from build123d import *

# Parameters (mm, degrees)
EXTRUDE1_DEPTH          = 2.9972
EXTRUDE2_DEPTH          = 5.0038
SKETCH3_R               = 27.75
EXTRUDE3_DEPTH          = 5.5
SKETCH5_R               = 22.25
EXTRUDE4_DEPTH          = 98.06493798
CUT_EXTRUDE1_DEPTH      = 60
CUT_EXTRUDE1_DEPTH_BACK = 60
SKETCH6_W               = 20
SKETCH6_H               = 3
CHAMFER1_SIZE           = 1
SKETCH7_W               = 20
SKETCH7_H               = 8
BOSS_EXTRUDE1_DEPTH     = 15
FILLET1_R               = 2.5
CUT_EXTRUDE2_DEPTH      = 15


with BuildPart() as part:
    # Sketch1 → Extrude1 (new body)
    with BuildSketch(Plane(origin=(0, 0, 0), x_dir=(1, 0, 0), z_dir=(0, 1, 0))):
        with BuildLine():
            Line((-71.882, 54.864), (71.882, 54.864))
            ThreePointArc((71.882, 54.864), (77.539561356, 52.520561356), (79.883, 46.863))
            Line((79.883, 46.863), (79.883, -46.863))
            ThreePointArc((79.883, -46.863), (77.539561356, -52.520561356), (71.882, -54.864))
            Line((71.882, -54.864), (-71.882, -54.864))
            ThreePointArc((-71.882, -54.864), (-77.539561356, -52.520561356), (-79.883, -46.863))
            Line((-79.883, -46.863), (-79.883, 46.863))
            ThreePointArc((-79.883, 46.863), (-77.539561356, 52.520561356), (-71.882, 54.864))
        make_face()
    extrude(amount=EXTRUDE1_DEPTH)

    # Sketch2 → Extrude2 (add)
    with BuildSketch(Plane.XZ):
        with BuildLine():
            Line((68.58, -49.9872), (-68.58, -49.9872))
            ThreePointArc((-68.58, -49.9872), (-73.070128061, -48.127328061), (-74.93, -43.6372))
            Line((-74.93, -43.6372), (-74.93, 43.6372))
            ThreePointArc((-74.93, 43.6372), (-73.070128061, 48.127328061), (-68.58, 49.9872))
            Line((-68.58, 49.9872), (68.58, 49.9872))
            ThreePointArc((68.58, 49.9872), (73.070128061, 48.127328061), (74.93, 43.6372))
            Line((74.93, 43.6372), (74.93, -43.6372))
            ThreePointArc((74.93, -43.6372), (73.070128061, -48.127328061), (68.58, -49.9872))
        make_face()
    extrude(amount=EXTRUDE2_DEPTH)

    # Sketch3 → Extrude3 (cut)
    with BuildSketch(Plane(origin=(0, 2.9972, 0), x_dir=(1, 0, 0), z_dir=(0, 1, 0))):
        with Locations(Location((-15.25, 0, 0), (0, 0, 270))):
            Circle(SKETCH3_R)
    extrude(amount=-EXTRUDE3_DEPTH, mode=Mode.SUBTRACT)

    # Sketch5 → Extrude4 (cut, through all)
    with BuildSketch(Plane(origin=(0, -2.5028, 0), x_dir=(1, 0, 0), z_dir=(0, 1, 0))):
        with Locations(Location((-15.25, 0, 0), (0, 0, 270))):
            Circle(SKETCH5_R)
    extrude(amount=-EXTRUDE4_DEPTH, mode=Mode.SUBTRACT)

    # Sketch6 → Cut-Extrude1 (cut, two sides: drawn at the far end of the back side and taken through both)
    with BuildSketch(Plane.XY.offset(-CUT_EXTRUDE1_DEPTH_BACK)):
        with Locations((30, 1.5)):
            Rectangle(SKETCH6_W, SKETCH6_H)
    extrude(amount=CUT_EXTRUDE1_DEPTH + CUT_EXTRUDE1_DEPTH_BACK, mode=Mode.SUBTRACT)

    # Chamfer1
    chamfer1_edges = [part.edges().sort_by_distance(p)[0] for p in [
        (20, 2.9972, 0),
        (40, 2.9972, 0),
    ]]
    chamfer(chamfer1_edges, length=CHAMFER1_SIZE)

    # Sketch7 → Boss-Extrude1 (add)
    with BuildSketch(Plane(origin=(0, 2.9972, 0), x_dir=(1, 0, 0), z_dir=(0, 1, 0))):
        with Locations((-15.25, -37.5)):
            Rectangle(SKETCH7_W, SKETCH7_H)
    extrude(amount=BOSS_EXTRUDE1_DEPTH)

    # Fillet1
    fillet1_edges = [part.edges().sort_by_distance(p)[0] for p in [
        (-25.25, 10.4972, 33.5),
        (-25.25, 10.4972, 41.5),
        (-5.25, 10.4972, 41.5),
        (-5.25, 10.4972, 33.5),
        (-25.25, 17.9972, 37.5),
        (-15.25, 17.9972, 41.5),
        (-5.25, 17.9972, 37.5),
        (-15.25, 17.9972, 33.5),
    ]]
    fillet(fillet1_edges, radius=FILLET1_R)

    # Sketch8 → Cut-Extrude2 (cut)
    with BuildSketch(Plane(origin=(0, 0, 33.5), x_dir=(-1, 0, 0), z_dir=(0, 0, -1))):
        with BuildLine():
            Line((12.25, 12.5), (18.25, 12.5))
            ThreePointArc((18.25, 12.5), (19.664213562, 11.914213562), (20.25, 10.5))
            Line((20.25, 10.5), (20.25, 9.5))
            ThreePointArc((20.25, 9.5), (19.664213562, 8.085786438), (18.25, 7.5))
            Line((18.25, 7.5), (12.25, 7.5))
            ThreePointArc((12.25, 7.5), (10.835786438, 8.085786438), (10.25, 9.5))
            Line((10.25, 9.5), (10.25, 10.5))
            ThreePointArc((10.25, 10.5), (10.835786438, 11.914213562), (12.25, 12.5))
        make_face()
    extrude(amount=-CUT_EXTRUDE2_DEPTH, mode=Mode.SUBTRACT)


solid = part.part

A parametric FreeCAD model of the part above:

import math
import FreeCAD as App
import Part
import Sketcher

V = App.Vector
Q = App.Units.Quantity


def edges_at(feature, points):
    """Names of the edges that pass closest to the given points."""
    edges = feature.Shape.Edges
    near = lambda p: min(range(len(edges)), key=lambda i: edges[i].distToShape(Part.Vertex(*p))[0])
    return sorted({f"Edge{near(p) + 1}" for p in points})


def add_polygon(sketch, points):
    """Adds a closed chain of lines whose ends are joined by coincident constraints."""
    first, n = sketch.GeometryCount, len(points)
    for a, b in zip(points, points[1:] + points[:1]):
        sketch.addGeometry(Part.LineSegment(App.Vector(*a, 0), App.Vector(*b, 0)), False)
    for i in range(n):
        sketch.addConstraint(Sketcher.Constraint("Coincident", first + i, 2, first + (i + 1) % n, 1))

doc = App.newDocument("Part")
body = doc.addObject("PartDesign::Body", "Body")

# Sketch on XZ plane
sketch1 = body.newObject("Sketcher::SketchObject", "Sketch")
sketch1.AttachmentSupport = (doc.getObject("XZ_Plane"), [""])
sketch1.MapMode = "FlatFace"
sketch1.addGeometry(Part.LineSegment(V(72, -55, 0), V(-72, -55, 0)), False)
sketch1.addGeometry(Part.ArcOfCircle(Part.Circle(V(-72, -47, 0), V(0, 0, 1), 8), math.radians(-180), math.radians(-90)), False)
sketch1.addGeometry(Part.LineSegment(V(-80, -47, 0), V(-80, 47, 0)), False)
sketch1.addGeometry(Part.ArcOfCircle(Part.Circle(V(-72, 47, 0), V(0, 0, 1), 8), math.radians(90), math.radians(180)), False)
sketch1.addGeometry(Part.LineSegment(V(-72, 55, 0), V(72, 55, 0)), False)
sketch1.addGeometry(Part.ArcOfCircle(Part.Circle(V(72, 47, 0), V(0, 0, 1), 8), math.radians(0), math.radians(90)), False)
sketch1.addGeometry(Part.LineSegment(V(80, 47, 0), V(80, -47, 0)), False)
sketch1.addGeometry(Part.ArcOfCircle(Part.Circle(V(72, -47, 0), V(0, 0, 1), 8), math.radians(-90), math.radians(0)), False)
sketch1.addConstraint(Sketcher.Constraint("Tangent", 0, 2, 1, 2))
sketch1.addConstraint(Sketcher.Constraint("Tangent", 1, 1, 2, 1))
sketch1.addConstraint(Sketcher.Constraint("Tangent", 2, 2, 3, 2))
sketch1.addConstraint(Sketcher.Constraint("Tangent", 3, 1, 4, 1))
sketch1.addConstraint(Sketcher.Constraint("Tangent", 4, 2, 5, 2))
sketch1.addConstraint(Sketcher.Constraint("Tangent", 5, 1, 6, 1))
sketch1.addConstraint(Sketcher.Constraint("Tangent", 6, 2, 7, 2))
sketch1.addConstraint(Sketcher.Constraint("Tangent", 7, 1, 0, 1))
sketch1.addConstraint(Sketcher.Constraint("Horizontal", 0))
sketch1.addConstraint(Sketcher.Constraint("Vertical", 2))
sketch1.addConstraint(Sketcher.Constraint("Horizontal", 4))
sketch1.addConstraint(Sketcher.Constraint("Vertical", 6))
sketch1.addConstraint(Sketcher.Constraint("Equal", 1, 3))
sketch1.addConstraint(Sketcher.Constraint("Equal", 3, 5))
sketch1.addConstraint(Sketcher.Constraint("Equal", 5, 7))
sketch1.addConstraint(Sketcher.Constraint("Symmetric", 1, 3, 5, 3, -1, 1))
sketch1.addConstraint(Sketcher.Constraint("Radius", 1, Q("8.001 mm")))
sketch1.addConstraint(Sketcher.Constraint("DistanceX", 0, 2, 0, 1, Q("143.764 mm")))
sketch1.addConstraint(Sketcher.Constraint("DistanceY", 2, 1, 2, 2, Q("93.726 mm")))
pad1 = body.newObject("PartDesign::Pad", "Pad")
pad1.Profile = sketch1
pad1.Length = 2.9972
pad1.Reversed = True

# Sketch on XZ plane
sketch2 = body.newObject("Sketcher::SketchObject", "Sketch001")
sketch2.AttachmentSupport = (doc.getObject("XZ_Plane"), [""])
sketch2.MapMode = "FlatFace"
sketch2.addGeometry(Part.LineSegment(V(-69, -50, 0), V(69, -50, 0)), False)
sketch2.addGeometry(Part.ArcOfCircle(Part.Circle(V(69, -44, 0), V(0, 0, 1), 6), math.radians(-90), math.radians(0)), False)
sketch2.addGeometry(Part.LineSegment(V(75, -44, 0), V(75, 44, 0)), False)
sketch2.addGeometry(Part.ArcOfCircle(Part.Circle(V(69, 44, 0), V(0, 0, 1), 6), math.radians(0), math.radians(90)), False)
sketch2.addGeometry(Part.LineSegment(V(69, 50, 0), V(-69, 50, 0)), False)
sketch2.addGeometry(Part.ArcOfCircle(Part.Circle(V(-69, 44, 0), V(0, 0, 1), 6), math.radians(90), math.radians(180)), False)
sketch2.addGeometry(Part.LineSegment(V(-75, 44, 0), V(-75, -44, 0)), False)
sketch2.addGeometry(Part.ArcOfCircle(Part.Circle(V(-69, -44, 0), V(0, 0, 1), 6), math.radians(180), math.radians(270)), False)
sketch2.addConstraint(Sketcher.Constraint("Tangent", 0, 2, 1, 1))
sketch2.addConstraint(Sketcher.Constraint("Tangent", 1, 2, 2, 1))
sketch2.addConstraint(Sketcher.Constraint("Tangent", 2, 2, 3, 1))
sketch2.addConstraint(Sketcher.Constraint("Tangent", 3, 2, 4, 1))
sketch2.addConstraint(Sketcher.Constraint("Tangent", 4, 2, 5, 1))
sketch2.addConstraint(Sketcher.Constraint("Tangent", 5, 2, 6, 1))
sketch2.addConstraint(Sketcher.Constraint("Tangent", 6, 2, 7, 1))
sketch2.addConstraint(Sketcher.Constraint("Tangent", 7, 2, 0, 1))
sketch2.addConstraint(Sketcher.Constraint("Horizontal", 0))
sketch2.addConstraint(Sketcher.Constraint("Vertical", 2))
sketch2.addConstraint(Sketcher.Constraint("Horizontal", 4))
sketch2.addConstraint(Sketcher.Constraint("Vertical", 6))
sketch2.addConstraint(Sketcher.Constraint("Equal", 1, 3))
sketch2.addConstraint(Sketcher.Constraint("Equal", 3, 5))
sketch2.addConstraint(Sketcher.Constraint("Equal", 5, 7))
sketch2.addConstraint(Sketcher.Constraint("Symmetric", 1, 3, 5, 3, -1, 1))
sketch2.addConstraint(Sketcher.Constraint("Radius", 1, Q("6.35 mm")))
sketch2.addConstraint(Sketcher.Constraint("DistanceX", 0, 1, 0, 2, Q("137.16 mm")))
sketch2.addConstraint(Sketcher.Constraint("DistanceY", 2, 1, 2, 2, Q("87.2744 mm")))
pad2 = body.newObject("PartDesign::Pad", "Pad001")
pad2.Profile = sketch2
pad2.Length = 5.0038

# Sketch on XZ plane
sketch3 = body.newObject("Sketcher::SketchObject", "Sketch002")
sketch3.AttachmentSupport = (doc.getObject("XZ_Plane"), [""])
sketch3.MapMode = "FlatFace"
sketch3.AttachmentOffset = App.Placement(V(0, 0, -2.9972), App.Rotation())
sketch3.addGeometry(Part.Circle(V(-15, 0, 0), V(0, 0, 1), 28), False)
sketch3.addConstraint(Sketcher.Constraint("PointOnObject", 0, 3, -1))
sketch3.addConstraint(Sketcher.Constraint("Diameter", 0, Q("55.5 mm")))
sketch3.addConstraint(Sketcher.Constraint("DistanceX", 0, 3, -1, 1, Q("15.25 mm")))
pocket1 = body.newObject("PartDesign::Pocket", "Pocket")
pocket1.Profile = sketch3
pocket1.Length = 5.5
pocket1.Reversed = True

# Sketch on XZ plane
sketch4 = body.newObject("Sketcher::SketchObject", "Sketch003")
sketch4.AttachmentSupport = (doc.getObject("XZ_Plane"), [""])
sketch4.MapMode = "FlatFace"
sketch4.AttachmentOffset = App.Placement(V(0, 0, 2.5028), App.Rotation())
sketch4.addGeometry(Part.Circle(V(-15, 0, 0), V(0, 0, 1), 22), False)
sketch4.addConstraint(Sketcher.Constraint("PointOnObject", 0, 3, -1))
sketch4.addConstraint(Sketcher.Constraint("Diameter", 0, Q("44.5 mm")))
sketch4.addConstraint(Sketcher.Constraint("DistanceX", 0, 3, -1, 1, Q("15.25 mm")))
pocket2 = body.newObject("PartDesign::Pocket", "Pocket001")
pocket2.Profile = sketch4
pocket2.Type = "ThroughAll"
pocket2.Reversed = True

# Sketch on XY plane
sketch5 = body.newObject("Sketcher::SketchObject", "Sketch004")
sketch5.AttachmentSupport = (doc.getObject("XY_Plane"), [""])
sketch5.MapMode = "FlatFace"
add_polygon(sketch5, [(20, 3), (20, 0), (40, 0), (40, 3)])  # lines 0-3
sketch5.addConstraint(Sketcher.Constraint("Vertical", 0))
sketch5.addConstraint(Sketcher.Constraint("Horizontal", 1))
sketch5.addConstraint(Sketcher.Constraint("Vertical", 2))
sketch5.addConstraint(Sketcher.Constraint("Horizontal", 3))
sketch5.addConstraint(Sketcher.Constraint("PointOnObject", 0, 2, -1))
sketch5.addConstraint(Sketcher.Constraint("DistanceX", 1, 1, 1, 2, Q("20 mm")))
sketch5.addConstraint(Sketcher.Constraint("DistanceY", 0, 2, 0, 1, Q("3 mm")))
sketch5.addConstraint(Sketcher.Constraint("DistanceX", -1, 1, 0, 2, Q("20 mm")))
pocket3 = body.newObject("PartDesign::Pocket", "Pocket002")
pocket3.Profile = sketch5
pocket3.Type = "ThroughAll"
pocket3.Midplane = True
doc.recompute()

chamfer = body.newObject("PartDesign::Chamfer", "Chamfer")
chamfer.Base = (pocket3, edges_at(pocket3, [(20, 2.997, 0), (40, 2.997, 0)]))
chamfer.Size = 1

# Sketch on XZ plane
sketch6 = body.newObject("Sketcher::SketchObject", "Sketch005")
sketch6.AttachmentSupport = (doc.getObject("XZ_Plane"), [""])
sketch6.MapMode = "FlatFace"
sketch6.AttachmentOffset = App.Placement(V(0, 0, -2.9972), App.Rotation())
add_polygon(sketch6, [(-25, 34), (-25, 42), (-5, 42), (-5, 34)])  # lines 0-3
sketch6.addConstraint(Sketcher.Constraint("Vertical", 0))
sketch6.addConstraint(Sketcher.Constraint("Horizontal", 1))
sketch6.addConstraint(Sketcher.Constraint("Vertical", 2))
sketch6.addConstraint(Sketcher.Constraint("Horizontal", 3))
sketch6.addConstraint(Sketcher.Constraint("DistanceX", 1, 1, 1, 2, Q("20 mm")))
sketch6.addConstraint(Sketcher.Constraint("DistanceY", 0, 1, 0, 2, Q("8 mm")))
sketch6.addConstraint(Sketcher.Constraint("DistanceY", -1, 1, 0, 2, Q("41.5 mm")))
sketch6.addConstraint(Sketcher.Constraint("DistanceX", 0, 2, -1, 1, Q("25.25 mm")))
pad3 = body.newObject("PartDesign::Pad", "Pad002")
pad3.Profile = sketch6
pad3.Length = 15
pad3.Reversed = True
doc.recompute()

fillet = body.newObject("PartDesign::Fillet", "Fillet")
fillet.Base = (pad3, edges_at(pad3, [
    (-25.25, 10.497, 33.5),
    (-25.25, 10.497, 41.5),
    (-5.25, 10.497, 41.5),
    (-5.25, 10.497, 33.5),
    (-25.25, 17.997, 37.5),
    (-15.25, 17.997, 41.5),
    (-5.25, 17.997, 37.5),
    (-15.25, 17.997, 33.5),
]))
fillet.Radius = 2.5

# Sketch on XY plane
sketch7 = body.newObject("Sketcher::SketchObject", "Sketch006")
sketch7.AttachmentSupport = (doc.getObject("XY_Plane"), [""])
sketch7.MapMode = "FlatFace"
sketch7.AttachmentOffset = App.Placement(V(0, 0, 33.5), App.Rotation())
sketch7.addGeometry(Part.LineSegment(V(-18.2, 12.5, 0), V(-12.2, 12.5, 0)), False)
sketch7.addGeometry(Part.ArcOfCircle(Part.Circle(V(-12.3, 10.5, 0), V(0, 0, 1), 2), math.radians(0), math.radians(90)), False)
sketch7.addGeometry(Part.LineSegment(V(-10.2, 10.5, 0), V(-10.2, 9.5, 0)), False)
sketch7.addGeometry(Part.ArcOfCircle(Part.Circle(V(-12.3, 9.5, 0), V(0, 0, 1), 2), math.radians(-90), math.radians(0)), False)
sketch7.addGeometry(Part.LineSegment(V(-12.2, 7.5, 0), V(-18.2, 7.5, 0)), False)
sketch7.addGeometry(Part.ArcOfCircle(Part.Circle(V(-18.2, 9.5, 0), V(0, 0, 1), 2), math.radians(-180), math.radians(-90)), False)
sketch7.addGeometry(Part.LineSegment(V(-20.2, 9.5, 0), V(-20.2, 10.5, 0)), False)
sketch7.addGeometry(Part.ArcOfCircle(Part.Circle(V(-18.2, 10.5, 0), V(0, 0, 1), 2), math.radians(90), math.radians(180)), False)
sketch7.addConstraint(Sketcher.Constraint("Tangent", 0, 2, 1, 2))
sketch7.addConstraint(Sketcher.Constraint("Tangent", 1, 1, 2, 1))
sketch7.addConstraint(Sketcher.Constraint("Tangent", 2, 2, 3, 2))
sketch7.addConstraint(Sketcher.Constraint("Tangent", 3, 1, 4, 1))
sketch7.addConstraint(Sketcher.Constraint("Tangent", 4, 2, 5, 2))
sketch7.addConstraint(Sketcher.Constraint("Tangent", 5, 1, 6, 1))
sketch7.addConstraint(Sketcher.Constraint("Tangent", 6, 2, 7, 2))
sketch7.addConstraint(Sketcher.Constraint("Tangent", 7, 1, 0, 1))
sketch7.addConstraint(Sketcher.Constraint("Horizontal", 0))
sketch7.addConstraint(Sketcher.Constraint("Vertical", 2))
sketch7.addConstraint(Sketcher.Constraint("Horizontal", 4))
sketch7.addConstraint(Sketcher.Constraint("Vertical", 6))
sketch7.addConstraint(Sketcher.Constraint("Equal", 1, 3))
sketch7.addConstraint(Sketcher.Constraint("Equal", 3, 5))
sketch7.addConstraint(Sketcher.Constraint("Equal", 5, 7))
sketch7.addConstraint(Sketcher.Constraint("Radius", 1, Q("2 mm")))
sketch7.addConstraint(Sketcher.Constraint("DistanceX", 0, 1, 0, 2, Q("6 mm")))
sketch7.addConstraint(Sketcher.Constraint("DistanceY", 2, 2, 2, 1, Q("1 mm")))
sketch7.addConstraint(Sketcher.Constraint("DistanceY", -1, 1, 1, 3, Q("10.5 mm")))
sketch7.addConstraint(Sketcher.Constraint("DistanceX", 1, 3, -1, 1, Q("12.25 mm")))
pocket4 = body.newObject("PartDesign::Pocket", "Pocket003")
pocket4.Profile = sketch7
pocket4.Length = 15
pocket4.Reversed = True

doc.recompute()
